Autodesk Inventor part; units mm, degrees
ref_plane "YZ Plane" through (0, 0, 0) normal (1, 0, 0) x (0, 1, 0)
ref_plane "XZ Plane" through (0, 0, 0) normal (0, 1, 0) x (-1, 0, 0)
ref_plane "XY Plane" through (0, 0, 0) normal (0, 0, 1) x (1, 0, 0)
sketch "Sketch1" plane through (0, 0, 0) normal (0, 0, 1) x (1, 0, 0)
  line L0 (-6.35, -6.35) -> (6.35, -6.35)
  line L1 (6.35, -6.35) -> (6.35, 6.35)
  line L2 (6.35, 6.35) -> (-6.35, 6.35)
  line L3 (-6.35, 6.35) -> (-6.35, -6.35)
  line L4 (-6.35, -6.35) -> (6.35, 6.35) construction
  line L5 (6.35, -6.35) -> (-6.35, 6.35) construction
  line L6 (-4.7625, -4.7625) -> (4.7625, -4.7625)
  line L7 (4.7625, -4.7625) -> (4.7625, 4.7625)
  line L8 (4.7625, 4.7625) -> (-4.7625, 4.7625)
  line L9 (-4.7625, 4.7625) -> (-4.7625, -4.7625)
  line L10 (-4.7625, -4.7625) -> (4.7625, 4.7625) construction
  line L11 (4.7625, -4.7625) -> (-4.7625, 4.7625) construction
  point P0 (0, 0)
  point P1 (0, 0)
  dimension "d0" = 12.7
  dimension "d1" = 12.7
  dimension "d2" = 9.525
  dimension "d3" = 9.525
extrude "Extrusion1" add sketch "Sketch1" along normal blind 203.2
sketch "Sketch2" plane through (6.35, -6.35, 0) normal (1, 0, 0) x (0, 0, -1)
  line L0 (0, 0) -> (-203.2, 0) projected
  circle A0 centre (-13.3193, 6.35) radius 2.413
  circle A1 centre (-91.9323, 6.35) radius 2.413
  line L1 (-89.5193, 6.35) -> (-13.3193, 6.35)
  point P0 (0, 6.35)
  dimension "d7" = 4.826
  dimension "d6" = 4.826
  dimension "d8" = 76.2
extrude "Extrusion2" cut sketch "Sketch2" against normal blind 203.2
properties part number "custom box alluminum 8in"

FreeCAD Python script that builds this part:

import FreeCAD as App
import Part
import Sketcher
from FreeCAD import Vector
Q = App.Units.Quantity

doc = App.newDocument("Part")
body = doc.addObject("PartDesign::Body", "Body")

sketch1 = doc.addObject("Sketcher::SketchObject", "Sketch")
body.addObject(sketch1)
sketch1.AttachmentSupport = (doc.XY_Plane, [""])
sketch1.MapMode = "FlatFace"
sketch1.addGeometry([
    Part.LineSegment(Vector(-6, 6, 0), Vector(-6, -6, 0)),
    Part.LineSegment(Vector(-6, -6, 0), Vector(6, -6, 0)),
    Part.LineSegment(Vector(6, -6, 0), Vector(6, 6, 0)),
    Part.LineSegment(Vector(6, 6, 0), Vector(-6, 6, 0)),
    Part.LineSegment(Vector(5, -5, 0), Vector(-5, -5, 0)),
    Part.LineSegment(Vector(-5, -5, 0), Vector(-5, 5, 0)),
    Part.LineSegment(Vector(-5, 5, 0), Vector(5, 5, 0)),
    Part.LineSegment(Vector(5, 5, 0), Vector(5, -5, 0)),
], False)
sketch1.addConstraint([
    Sketcher.Constraint("Coincident", 0, 2, 1, 1),
    Sketcher.Constraint("Coincident", 1, 2, 2, 1),
    Sketcher.Constraint("Coincident", 2, 2, 3, 1),
    Sketcher.Constraint("Coincident", 3, 2, 0, 1),
    Sketcher.Constraint("Coincident", 4, 2, 5, 1),
    Sketcher.Constraint("Coincident", 5, 2, 6, 1),
    Sketcher.Constraint("Coincident", 6, 2, 7, 1),
    Sketcher.Constraint("Coincident", 7, 2, 4, 1),
    Sketcher.Constraint("Vertical", 0),
    Sketcher.Constraint("Horizontal", 1),
    Sketcher.Constraint("Vertical", 2),
    Sketcher.Constraint("Horizontal", 3),
    Sketcher.Constraint("Horizontal", 4),
    Sketcher.Constraint("Vertical", 5),
    Sketcher.Constraint("Horizontal", 6),
    Sketcher.Constraint("Vertical", 7),
    Sketcher.Constraint("Symmetric", 0, 2, 2, 2, -1, 1),
    Sketcher.Constraint("Symmetric", 4, 2, 6, 2, -1, 1),
    Sketcher.Constraint("Equal", 3, 0),
    Sketcher.Constraint("Equal", 6, 5),
    Sketcher.Constraint("DistanceX", 1, 1, 1, 2, Q("0.5 in")),
    Sketcher.Constraint("DistanceX", 4, 2, 4, 1, Q("0.375 in")),
])
pad1 = doc.addObject("PartDesign::Pad", "Pad")
body.addObject(pad1)
pad1.Profile = sketch1
pad1.Length = Q("8 in")

sketch2 = doc.addObject("Sketcher::SketchObject", "Sketch001")
body.addObject(sketch2)
sketch2.AttachmentSupport = (doc.YZ_Plane, [""])
sketch2.MapMode = "FlatFace"
sketch2.AttachmentOffset = App.Placement(Vector(0, 0, 0.25 * 25.4), App.Rotation())
sketch2.addGeometry([
    Part.Circle(Vector(0, 13.3, 0), Vector(0, 0, 1), 2.4),
    Part.Circle(Vector(0, 91.9, 0), Vector(0, 0, 1), 2.4),
], False)
sketch2.addConstraint([
    Sketcher.Constraint("Equal", 0, 1),
    Sketcher.Constraint("PointOnObject", 0, 3, -2),
    Sketcher.Constraint("PointOnObject", 1, 3, -2),
    Sketcher.Constraint("Diameter", 0, Q("0.19 in")),
    Sketcher.Constraint("DistanceY", 0, 3, 1, 3, Q("3.095 in")),
    Sketcher.Constraint("DistanceY", -1, 1, 0, 3, 13.3193),
])
pocket1 = doc.addObject("PartDesign::Pocket", "Pocket")
body.addObject(pocket1)
pocket1.Profile = sketch2
pocket1.Length = Q("8 in")

doc.recompute()
